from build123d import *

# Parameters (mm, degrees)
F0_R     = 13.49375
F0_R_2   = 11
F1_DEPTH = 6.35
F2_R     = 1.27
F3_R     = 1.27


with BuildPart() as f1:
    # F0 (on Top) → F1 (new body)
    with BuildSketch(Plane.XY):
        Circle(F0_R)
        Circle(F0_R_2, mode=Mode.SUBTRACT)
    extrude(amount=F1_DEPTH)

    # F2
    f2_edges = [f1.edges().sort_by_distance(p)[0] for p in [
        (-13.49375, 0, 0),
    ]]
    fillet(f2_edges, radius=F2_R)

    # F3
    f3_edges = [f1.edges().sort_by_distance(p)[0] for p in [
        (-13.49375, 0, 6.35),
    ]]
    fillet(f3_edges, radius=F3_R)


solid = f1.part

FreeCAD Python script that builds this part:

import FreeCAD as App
import Part
import Sketcher
Q = App.Units.Quantity


def edges_at(feature, points):
    """Names of the edges that pass closest to the given points."""
    edges = feature.Shape.Edges
    near = lambda p: min(range(len(edges)), key=lambda i: edges[i].distToShape(Part.Vertex(*p))[0])
    return sorted({f"Edge{near(p) + 1}" for p in points})

doc = App.newDocument("Part")
body = doc.addObject("PartDesign::Body", "Body")

# Sketch on XY plane
sketch1 = body.newObject("Sketcher::SketchObject", "Sketch")
sketch1.AttachmentSupport = (doc.getObject("XY_Plane"), [""])
sketch1.MapMode = "FlatFace"
sketch1.addGeometry(Part.Circle(App.Vector(0, 0, 0), App.Vector(0, 0, 1), 13), False)
sketch1.addGeometry(Part.Circle(App.Vector(0, 0, 0), App.Vector(0, 0, 1), 11), False)
sketch1.addConstraint(Sketcher.Constraint("Coincident", 0, 3, -1, 1))
sketch1.addConstraint(Sketcher.Constraint("Coincident", 1, 3, -1, 1))
sketch1.addConstraint(Sketcher.Constraint("Diameter", 0, Q("1.0625 in")))
sketch1.addConstraint(Sketcher.Constraint("Diameter", 1, 22.0))
pad1 = body.newObject("PartDesign::Pad", "Pad")
pad1.Profile = sketch1
pad1.Length = Q("0.25 in")
doc.recompute()

fillet = body.newObject("PartDesign::Fillet", "Fillet")
fillet.Base = (pad1, edges_at(pad1, [(-13.494, 0, 0)]))
fillet.Radius = Q("0.05 in")
doc.recompute()

fillet2 = body.newObject("PartDesign::Fillet", "Fillet001")
fillet2.Base = (fillet, edges_at(fillet, [(-13.494, 0, 6.35)]))
fillet2.Radius = Q("0.05 in")

doc.recompute()
